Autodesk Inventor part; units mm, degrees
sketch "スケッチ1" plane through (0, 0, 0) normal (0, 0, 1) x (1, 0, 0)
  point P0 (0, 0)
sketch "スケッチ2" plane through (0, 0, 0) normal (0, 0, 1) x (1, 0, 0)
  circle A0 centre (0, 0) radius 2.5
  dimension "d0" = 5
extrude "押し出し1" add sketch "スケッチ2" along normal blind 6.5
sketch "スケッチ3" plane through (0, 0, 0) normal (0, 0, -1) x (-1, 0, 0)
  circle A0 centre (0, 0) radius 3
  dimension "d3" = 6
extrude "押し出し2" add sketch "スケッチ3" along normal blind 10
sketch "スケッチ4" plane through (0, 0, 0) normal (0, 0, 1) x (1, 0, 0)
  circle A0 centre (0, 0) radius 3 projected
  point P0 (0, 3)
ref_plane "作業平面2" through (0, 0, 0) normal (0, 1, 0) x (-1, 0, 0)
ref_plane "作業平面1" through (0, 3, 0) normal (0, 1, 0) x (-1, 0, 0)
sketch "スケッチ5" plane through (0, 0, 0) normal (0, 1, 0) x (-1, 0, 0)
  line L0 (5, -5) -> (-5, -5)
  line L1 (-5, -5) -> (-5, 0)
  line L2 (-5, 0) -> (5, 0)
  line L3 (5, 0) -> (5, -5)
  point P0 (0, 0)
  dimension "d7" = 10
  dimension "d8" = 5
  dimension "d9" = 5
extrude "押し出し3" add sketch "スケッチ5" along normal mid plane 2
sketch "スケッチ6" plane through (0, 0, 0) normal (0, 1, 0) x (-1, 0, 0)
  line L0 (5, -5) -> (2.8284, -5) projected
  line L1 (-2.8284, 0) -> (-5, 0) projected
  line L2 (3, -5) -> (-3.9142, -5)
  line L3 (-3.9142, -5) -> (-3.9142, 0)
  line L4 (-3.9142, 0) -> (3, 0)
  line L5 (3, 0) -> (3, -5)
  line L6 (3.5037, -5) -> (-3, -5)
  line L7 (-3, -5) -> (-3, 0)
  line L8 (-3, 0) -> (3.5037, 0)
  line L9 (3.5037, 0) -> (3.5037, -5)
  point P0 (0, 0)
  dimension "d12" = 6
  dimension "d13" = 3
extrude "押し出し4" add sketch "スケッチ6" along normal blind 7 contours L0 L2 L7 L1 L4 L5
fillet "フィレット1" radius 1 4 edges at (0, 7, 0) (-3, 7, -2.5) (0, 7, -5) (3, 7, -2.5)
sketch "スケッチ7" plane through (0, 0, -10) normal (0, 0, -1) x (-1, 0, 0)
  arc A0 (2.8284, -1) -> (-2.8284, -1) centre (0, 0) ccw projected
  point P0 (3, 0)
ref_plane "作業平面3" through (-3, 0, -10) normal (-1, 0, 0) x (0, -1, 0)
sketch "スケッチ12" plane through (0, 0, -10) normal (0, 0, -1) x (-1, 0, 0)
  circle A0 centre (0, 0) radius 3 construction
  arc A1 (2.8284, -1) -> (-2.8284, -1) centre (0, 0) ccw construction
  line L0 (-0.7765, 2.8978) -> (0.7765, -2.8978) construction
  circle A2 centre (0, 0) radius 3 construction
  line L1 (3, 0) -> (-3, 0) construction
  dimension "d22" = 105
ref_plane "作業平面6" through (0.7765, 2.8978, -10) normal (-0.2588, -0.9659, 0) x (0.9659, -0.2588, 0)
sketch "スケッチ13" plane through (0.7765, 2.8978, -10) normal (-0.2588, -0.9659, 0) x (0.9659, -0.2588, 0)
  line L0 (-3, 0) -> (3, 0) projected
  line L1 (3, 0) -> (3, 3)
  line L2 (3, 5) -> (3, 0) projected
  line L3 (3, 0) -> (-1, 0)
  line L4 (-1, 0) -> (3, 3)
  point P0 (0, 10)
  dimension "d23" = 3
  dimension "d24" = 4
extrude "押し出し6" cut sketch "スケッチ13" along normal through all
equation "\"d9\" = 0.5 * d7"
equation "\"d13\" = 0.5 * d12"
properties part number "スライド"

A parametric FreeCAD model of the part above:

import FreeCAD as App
import Part
import Sketcher
from FreeCAD import Vector
Q = App.Units.Quantity


def edges_at(feature, points):
    """Names of the edges that pass closest to the given points."""
    edges = feature.Shape.Edges
    near = lambda p: min(range(len(edges)), key=lambda i: edges[i].distToShape(Part.Vertex(*p))[0])
    return sorted({f"Edge{near(p) + 1}" for p in points})

doc = App.newDocument("Part")
body = doc.addObject("PartDesign::Body", "Body")

sketch1 = body.newObject("Sketcher::SketchObject", "Sketch")
sketch1.AttachmentSupport = (doc.getObject("XY_Plane"), [""])
sketch1.MapMode = "FlatFace"
sketch1.addGeometry(Part.Circle(Vector(0, 0, 0), Vector(0, 0, 1), 2.5), False)
sketch1.addConstraint(Sketcher.Constraint("Coincident", 0, 3, -1, 1))
sketch1.addConstraint(Sketcher.Constraint("Diameter", 0, Q("5 mm")))
pad1 = body.newObject("PartDesign::Pad", "Pad")
pad1.Profile = sketch1
pad1.Length = 6.5

sketch2 = body.newObject("Sketcher::SketchObject", "Sketch001")
sketch2.AttachmentSupport = (doc.getObject("XY_Plane"), [""])
sketch2.MapMode = "FlatFace"
sketch2.addGeometry(Part.Circle(Vector(0, 0, 0), Vector(0, 0, 1), 3), False)
sketch2.addConstraint(Sketcher.Constraint("Coincident", 0, 3, -1, 1))
sketch2.addConstraint(Sketcher.Constraint("Diameter", 0, Q("6 mm")))
pad2 = body.newObject("PartDesign::Pad", "Pad001")
pad2.Profile = sketch2
pad2.Length = 10
pad2.Reversed = True

sketch3 = body.newObject("Sketcher::SketchObject", "Sketch002")
sketch3.AttachmentSupport = (doc.getObject("XZ_Plane"), [""])
sketch3.MapMode = "FlatFace"
sketch3.addGeometry(Part.LineSegment(Vector(5, -5, 0), Vector(-5, -5, 0)), False)
sketch3.addGeometry(Part.LineSegment(Vector(-5, -5, 0), Vector(-5, 0, 0)), False)
sketch3.addGeometry(Part.LineSegment(Vector(-5, 0, 0), Vector(5, 0, 0)), False)
sketch3.addGeometry(Part.LineSegment(Vector(5, 0, 0), Vector(5, -5, 0)), False)
sketch3.addConstraint(Sketcher.Constraint("Coincident", 0, 2, 1, 1))
sketch3.addConstraint(Sketcher.Constraint("Coincident", 1, 2, 2, 1))
sketch3.addConstraint(Sketcher.Constraint("Coincident", 2, 2, 3, 1))
sketch3.addConstraint(Sketcher.Constraint("Coincident", 3, 2, 0, 1))
sketch3.addConstraint(Sketcher.Constraint("Horizontal", 0))
sketch3.addConstraint(Sketcher.Constraint("Vertical", 1))
sketch3.addConstraint(Sketcher.Constraint("Horizontal", 2))
sketch3.addConstraint(Sketcher.Constraint("Vertical", 3))
sketch3.addConstraint(Sketcher.Constraint("Symmetric", 1, 2, 2, 2, -1, 1))
sketch3.addConstraint(Sketcher.Constraint("DistanceX", 0, 2, 0, 1, Q("10 mm")))
sketch3.addConstraint(Sketcher.Constraint("DistanceY", 1, 1, 1, 2, Q("5 mm")))
pad3 = body.newObject("PartDesign::Pad", "Pad002")
pad3.Profile = sketch3
pad3.Length = 2
pad3.Midplane = True

sketch4 = body.newObject("Sketcher::SketchObject", "Sketch003")
sketch4.AttachmentSupport = (doc.getObject("XZ_Plane"), [""])
sketch4.MapMode = "FlatFace"
sketch4.addGeometry(Part.LineSegment(Vector(3, -5, 0), Vector(-3, -5, 0)), False)
sketch4.addGeometry(Part.LineSegment(Vector(-3, -5, 0), Vector(-3, 0, 0)), False)
sketch4.addGeometry(Part.LineSegment(Vector(-3, 0, 0), Vector(3, 0, 0)), False)
sketch4.addGeometry(Part.LineSegment(Vector(3, 0, 0), Vector(3, -5, 0)), False)
sketch4.addConstraint(Sketcher.Constraint("Coincident", 0, 2, 1, 1))
sketch4.addConstraint(Sketcher.Constraint("Coincident", 1, 2, 2, 1))
sketch4.addConstraint(Sketcher.Constraint("Coincident", 2, 2, 3, 1))
sketch4.addConstraint(Sketcher.Constraint("Coincident", 3, 2, 0, 1))
sketch4.addConstraint(Sketcher.Constraint("Horizontal", 0))
sketch4.addConstraint(Sketcher.Constraint("Vertical", 1))
sketch4.addConstraint(Sketcher.Constraint("Horizontal", 2))
sketch4.addConstraint(Sketcher.Constraint("Vertical", 3))
sketch4.addConstraint(Sketcher.Constraint("Symmetric", 1, 2, 2, 2, -1, 1))
sketch4.addConstraint(Sketcher.Constraint("DistanceX", 0, 2, 0, 1, Q("6 mm")))
sketch4.addConstraint(Sketcher.Constraint("DistanceY", 1, 1, 1, 2, Q("5 mm")))
pad4 = body.newObject("PartDesign::Pad", "Pad003")
pad4.Profile = sketch4
pad4.Length = 7
pad4.Reversed = True
doc.recompute()

fillet = body.newObject("PartDesign::Fillet", "Fillet")
fillet.Base = (pad4, edges_at(pad4, [
    (0, 7, 0),
    (-3, 7, -2.5),
    (0, 7, -5),
    (3, 7, -2.5),
]))
fillet.Radius = 1

sketch5 = body.newObject("Sketcher::SketchObject", "Sketch004")
sketch5.Placement = App.Placement(Vector(0.7765, 2.8978, -10), App.Rotation(Vector(0.965925826, -0.258819045, 0), Vector(0, 0, 0.999999999), Vector(-0.258819045, -0.965925826, 0), "ZXY"))
sketch5.addGeometry(Part.LineSegment(Vector(3, 3, 0), Vector(-1, 0, 0)), False)
sketch5.addGeometry(Part.LineSegment(Vector(-1, 0, 0), Vector(3, 0, 0)), False)
sketch5.addGeometry(Part.LineSegment(Vector(3, 0, 0), Vector(3, 3, 0)), False)
sketch5.addConstraint(Sketcher.Constraint("Coincident", 0, 2, 1, 1))
sketch5.addConstraint(Sketcher.Constraint("Coincident", 1, 2, 2, 1))
sketch5.addConstraint(Sketcher.Constraint("Coincident", 2, 2, 0, 1))
sketch5.addConstraint(Sketcher.Constraint("Horizontal", 1))
sketch5.addConstraint(Sketcher.Constraint("Vertical", 2))
sketch5.addConstraint(Sketcher.Constraint("PointOnObject", 0, 2, -1))
sketch5.addConstraint(Sketcher.Constraint("DistanceX", 1, 1, 1, 2, Q("4 mm")))
sketch5.addConstraint(Sketcher.Constraint("DistanceY", 2, 1, 2, 2, Q("3 mm")))
sketch5.addConstraint(Sketcher.Constraint("DistanceX", -1, 1, 1, 2, Q("3 mm")))
pocket1 = body.newObject("PartDesign::Pocket", "Pocket")
pocket1.Profile = sketch5
pocket1.Type = "ThroughAll"
pocket1.Reversed = True

doc.recompute()
